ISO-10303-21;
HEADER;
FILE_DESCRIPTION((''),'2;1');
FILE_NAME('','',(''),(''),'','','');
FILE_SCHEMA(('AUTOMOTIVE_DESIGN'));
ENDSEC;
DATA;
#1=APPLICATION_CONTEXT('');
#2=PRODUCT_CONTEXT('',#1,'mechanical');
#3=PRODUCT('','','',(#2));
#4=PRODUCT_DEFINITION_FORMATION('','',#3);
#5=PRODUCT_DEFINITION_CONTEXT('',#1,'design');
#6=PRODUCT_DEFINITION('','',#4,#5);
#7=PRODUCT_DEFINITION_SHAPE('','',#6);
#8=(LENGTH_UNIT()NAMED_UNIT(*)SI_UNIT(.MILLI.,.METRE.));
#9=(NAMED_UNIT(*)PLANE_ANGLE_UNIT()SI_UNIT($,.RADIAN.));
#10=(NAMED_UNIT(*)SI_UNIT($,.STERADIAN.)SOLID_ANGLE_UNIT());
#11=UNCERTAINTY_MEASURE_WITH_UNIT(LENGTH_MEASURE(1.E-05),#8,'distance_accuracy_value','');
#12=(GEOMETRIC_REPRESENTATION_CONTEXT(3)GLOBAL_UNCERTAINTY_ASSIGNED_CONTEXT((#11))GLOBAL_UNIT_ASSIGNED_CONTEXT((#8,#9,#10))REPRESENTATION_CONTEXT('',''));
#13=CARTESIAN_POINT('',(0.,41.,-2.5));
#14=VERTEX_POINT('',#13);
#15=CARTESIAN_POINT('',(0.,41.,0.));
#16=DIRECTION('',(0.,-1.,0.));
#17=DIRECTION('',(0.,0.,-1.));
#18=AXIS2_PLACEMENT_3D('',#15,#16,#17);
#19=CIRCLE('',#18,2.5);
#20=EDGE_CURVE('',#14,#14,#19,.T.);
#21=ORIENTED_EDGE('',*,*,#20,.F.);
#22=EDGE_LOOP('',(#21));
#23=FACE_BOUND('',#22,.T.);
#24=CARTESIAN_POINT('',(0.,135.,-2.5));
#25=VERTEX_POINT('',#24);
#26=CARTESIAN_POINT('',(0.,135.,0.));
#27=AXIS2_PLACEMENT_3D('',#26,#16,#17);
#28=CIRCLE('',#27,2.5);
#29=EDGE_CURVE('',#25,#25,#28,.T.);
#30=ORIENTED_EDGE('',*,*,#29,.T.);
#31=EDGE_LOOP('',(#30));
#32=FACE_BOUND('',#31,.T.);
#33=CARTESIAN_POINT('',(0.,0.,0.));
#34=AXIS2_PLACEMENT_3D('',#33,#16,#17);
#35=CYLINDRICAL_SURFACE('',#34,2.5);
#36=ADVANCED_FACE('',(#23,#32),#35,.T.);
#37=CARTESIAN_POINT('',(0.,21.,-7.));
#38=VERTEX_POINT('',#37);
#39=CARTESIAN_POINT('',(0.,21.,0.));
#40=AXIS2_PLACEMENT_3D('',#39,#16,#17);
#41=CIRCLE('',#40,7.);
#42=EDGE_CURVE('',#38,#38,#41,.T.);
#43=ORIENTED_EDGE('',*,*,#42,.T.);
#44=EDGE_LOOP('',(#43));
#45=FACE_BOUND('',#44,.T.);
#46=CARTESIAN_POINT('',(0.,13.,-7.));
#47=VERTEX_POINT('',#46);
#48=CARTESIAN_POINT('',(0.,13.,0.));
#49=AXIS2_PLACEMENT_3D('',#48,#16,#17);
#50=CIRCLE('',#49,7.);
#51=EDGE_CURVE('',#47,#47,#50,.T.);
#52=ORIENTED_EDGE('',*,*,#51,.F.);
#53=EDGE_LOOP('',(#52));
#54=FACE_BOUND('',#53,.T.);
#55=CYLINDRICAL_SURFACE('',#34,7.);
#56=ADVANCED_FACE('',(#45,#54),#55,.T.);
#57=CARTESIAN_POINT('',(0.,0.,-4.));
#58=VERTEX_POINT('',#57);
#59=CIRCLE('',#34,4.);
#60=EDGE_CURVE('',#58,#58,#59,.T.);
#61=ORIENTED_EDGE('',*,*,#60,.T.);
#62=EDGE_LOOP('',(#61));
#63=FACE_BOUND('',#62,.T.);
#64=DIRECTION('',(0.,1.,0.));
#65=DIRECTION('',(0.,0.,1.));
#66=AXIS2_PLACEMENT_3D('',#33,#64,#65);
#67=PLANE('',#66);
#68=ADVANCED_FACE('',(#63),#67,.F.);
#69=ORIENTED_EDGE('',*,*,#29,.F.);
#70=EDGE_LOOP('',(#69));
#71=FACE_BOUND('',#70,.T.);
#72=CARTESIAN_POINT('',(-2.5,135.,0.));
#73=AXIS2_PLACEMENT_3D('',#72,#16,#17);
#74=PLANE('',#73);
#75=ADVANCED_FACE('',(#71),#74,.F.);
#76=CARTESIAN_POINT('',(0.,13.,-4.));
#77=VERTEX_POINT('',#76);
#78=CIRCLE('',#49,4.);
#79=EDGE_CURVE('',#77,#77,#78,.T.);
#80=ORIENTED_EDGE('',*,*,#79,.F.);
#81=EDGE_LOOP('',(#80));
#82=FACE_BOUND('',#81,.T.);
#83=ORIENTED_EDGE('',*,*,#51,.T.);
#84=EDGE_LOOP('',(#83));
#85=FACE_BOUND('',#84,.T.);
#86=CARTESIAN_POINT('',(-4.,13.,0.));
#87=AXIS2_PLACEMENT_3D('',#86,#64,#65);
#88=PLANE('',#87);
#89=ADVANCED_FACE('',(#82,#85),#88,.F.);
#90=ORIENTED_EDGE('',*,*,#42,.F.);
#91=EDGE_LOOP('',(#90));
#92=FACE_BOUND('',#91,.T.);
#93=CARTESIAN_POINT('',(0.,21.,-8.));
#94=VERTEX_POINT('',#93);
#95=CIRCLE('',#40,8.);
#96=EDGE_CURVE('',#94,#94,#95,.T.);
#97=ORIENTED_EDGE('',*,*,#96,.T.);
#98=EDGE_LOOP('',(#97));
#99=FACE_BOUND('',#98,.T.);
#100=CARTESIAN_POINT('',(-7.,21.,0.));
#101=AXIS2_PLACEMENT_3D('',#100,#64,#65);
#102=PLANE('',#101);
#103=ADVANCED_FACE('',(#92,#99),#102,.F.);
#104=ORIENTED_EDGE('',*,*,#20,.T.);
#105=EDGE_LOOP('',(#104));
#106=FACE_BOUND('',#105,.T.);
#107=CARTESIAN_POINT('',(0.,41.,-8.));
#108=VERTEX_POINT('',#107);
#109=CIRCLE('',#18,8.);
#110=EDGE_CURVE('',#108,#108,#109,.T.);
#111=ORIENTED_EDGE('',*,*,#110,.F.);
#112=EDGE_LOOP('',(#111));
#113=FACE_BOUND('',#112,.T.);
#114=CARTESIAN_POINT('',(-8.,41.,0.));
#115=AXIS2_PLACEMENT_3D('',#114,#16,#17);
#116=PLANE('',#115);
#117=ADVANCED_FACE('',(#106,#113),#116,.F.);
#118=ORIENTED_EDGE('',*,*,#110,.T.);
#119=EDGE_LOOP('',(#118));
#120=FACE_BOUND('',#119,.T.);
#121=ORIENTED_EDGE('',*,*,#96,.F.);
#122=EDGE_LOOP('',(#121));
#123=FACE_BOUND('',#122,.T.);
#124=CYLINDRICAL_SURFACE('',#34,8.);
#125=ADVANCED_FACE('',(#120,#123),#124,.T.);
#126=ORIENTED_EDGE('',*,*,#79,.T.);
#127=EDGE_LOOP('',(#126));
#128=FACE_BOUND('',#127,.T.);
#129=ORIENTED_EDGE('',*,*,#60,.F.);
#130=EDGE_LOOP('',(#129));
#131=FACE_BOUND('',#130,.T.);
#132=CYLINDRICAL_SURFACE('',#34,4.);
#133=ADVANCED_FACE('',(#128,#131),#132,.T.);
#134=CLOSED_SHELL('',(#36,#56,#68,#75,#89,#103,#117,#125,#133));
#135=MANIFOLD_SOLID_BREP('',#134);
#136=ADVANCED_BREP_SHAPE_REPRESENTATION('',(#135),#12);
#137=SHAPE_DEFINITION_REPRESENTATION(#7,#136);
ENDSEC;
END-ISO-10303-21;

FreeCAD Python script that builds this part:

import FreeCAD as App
import Part
import Sketcher
from FreeCAD import Vector


def add_polygon(sketch, points):
    """Adds a closed chain of lines whose ends are joined by coincident constraints."""
    first, n = sketch.GeometryCount, len(points)
    for a, b in zip(points, points[1:] + points[:1]):
        sketch.addGeometry(Part.LineSegment(App.Vector(*a, 0), App.Vector(*b, 0)), False)
    for i in range(n):
        sketch.addConstraint(Sketcher.Constraint("Coincident", first + i, 2, first + (i + 1) % n, 1))

doc = App.newDocument("Part")
body = doc.addObject("PartDesign::Body", "Body")

# Sketch on XY plane
sketch1 = body.newObject("Sketcher::SketchObject", "Sketch")
sketch1.AttachmentSupport = (doc.getObject("XY_Plane"), [""])
sketch1.MapMode = "FlatFace"
add_polygon(sketch1, [(-4, 0), (0, 0), (0, 135), (-2.5, 135), (-2.5, 41), (-8, 41), (-8, 21), (-7, 21), (-7, 13), (-4, 13)])  # lines 0-9
sketch1.addConstraint([
    Sketcher.Constraint("Horizontal", 0),
    Sketcher.Constraint("Vertical", 1),
    Sketcher.Constraint("Horizontal", 2),
    Sketcher.Constraint("Vertical", 3),
    Sketcher.Constraint("Horizontal", 4),
    Sketcher.Constraint("Vertical", 5),
    Sketcher.Constraint("Horizontal", 6),
    Sketcher.Constraint("Vertical", 7),
    Sketcher.Constraint("Horizontal", 8),
    Sketcher.Constraint("Vertical", 9),
    Sketcher.Constraint("Coincident", 0, 2, -1, 1),
    Sketcher.Constraint("DistanceX", 0, 1, 0, 2, 4.0),
    Sketcher.Constraint("DistanceX", 6, 1, 6, 2, 1.0),
    Sketcher.Constraint("DistanceX", 8, 1, 8, 2, 3.0),
    Sketcher.Constraint("DistanceY", 1, 1, 1, 2, 135.0),
    Sketcher.Constraint("DistanceY", 3, 2, 3, 1, 94.0),
    Sketcher.Constraint("DistanceY", 5, 2, 5, 1, 20.0),
    Sketcher.Constraint("DistanceY", 7, 2, 7, 1, 8.0),
    Sketcher.Constraint("DistanceX", 2, 2, 2, 1, 2.5),
])
revolution = body.newObject("PartDesign::Revolution", "Revolution")
revolution.Profile = sketch1
revolution.ReferenceAxis = (sketch1, ["V_Axis"])
revolution.Angle = 360

doc.recompute()
